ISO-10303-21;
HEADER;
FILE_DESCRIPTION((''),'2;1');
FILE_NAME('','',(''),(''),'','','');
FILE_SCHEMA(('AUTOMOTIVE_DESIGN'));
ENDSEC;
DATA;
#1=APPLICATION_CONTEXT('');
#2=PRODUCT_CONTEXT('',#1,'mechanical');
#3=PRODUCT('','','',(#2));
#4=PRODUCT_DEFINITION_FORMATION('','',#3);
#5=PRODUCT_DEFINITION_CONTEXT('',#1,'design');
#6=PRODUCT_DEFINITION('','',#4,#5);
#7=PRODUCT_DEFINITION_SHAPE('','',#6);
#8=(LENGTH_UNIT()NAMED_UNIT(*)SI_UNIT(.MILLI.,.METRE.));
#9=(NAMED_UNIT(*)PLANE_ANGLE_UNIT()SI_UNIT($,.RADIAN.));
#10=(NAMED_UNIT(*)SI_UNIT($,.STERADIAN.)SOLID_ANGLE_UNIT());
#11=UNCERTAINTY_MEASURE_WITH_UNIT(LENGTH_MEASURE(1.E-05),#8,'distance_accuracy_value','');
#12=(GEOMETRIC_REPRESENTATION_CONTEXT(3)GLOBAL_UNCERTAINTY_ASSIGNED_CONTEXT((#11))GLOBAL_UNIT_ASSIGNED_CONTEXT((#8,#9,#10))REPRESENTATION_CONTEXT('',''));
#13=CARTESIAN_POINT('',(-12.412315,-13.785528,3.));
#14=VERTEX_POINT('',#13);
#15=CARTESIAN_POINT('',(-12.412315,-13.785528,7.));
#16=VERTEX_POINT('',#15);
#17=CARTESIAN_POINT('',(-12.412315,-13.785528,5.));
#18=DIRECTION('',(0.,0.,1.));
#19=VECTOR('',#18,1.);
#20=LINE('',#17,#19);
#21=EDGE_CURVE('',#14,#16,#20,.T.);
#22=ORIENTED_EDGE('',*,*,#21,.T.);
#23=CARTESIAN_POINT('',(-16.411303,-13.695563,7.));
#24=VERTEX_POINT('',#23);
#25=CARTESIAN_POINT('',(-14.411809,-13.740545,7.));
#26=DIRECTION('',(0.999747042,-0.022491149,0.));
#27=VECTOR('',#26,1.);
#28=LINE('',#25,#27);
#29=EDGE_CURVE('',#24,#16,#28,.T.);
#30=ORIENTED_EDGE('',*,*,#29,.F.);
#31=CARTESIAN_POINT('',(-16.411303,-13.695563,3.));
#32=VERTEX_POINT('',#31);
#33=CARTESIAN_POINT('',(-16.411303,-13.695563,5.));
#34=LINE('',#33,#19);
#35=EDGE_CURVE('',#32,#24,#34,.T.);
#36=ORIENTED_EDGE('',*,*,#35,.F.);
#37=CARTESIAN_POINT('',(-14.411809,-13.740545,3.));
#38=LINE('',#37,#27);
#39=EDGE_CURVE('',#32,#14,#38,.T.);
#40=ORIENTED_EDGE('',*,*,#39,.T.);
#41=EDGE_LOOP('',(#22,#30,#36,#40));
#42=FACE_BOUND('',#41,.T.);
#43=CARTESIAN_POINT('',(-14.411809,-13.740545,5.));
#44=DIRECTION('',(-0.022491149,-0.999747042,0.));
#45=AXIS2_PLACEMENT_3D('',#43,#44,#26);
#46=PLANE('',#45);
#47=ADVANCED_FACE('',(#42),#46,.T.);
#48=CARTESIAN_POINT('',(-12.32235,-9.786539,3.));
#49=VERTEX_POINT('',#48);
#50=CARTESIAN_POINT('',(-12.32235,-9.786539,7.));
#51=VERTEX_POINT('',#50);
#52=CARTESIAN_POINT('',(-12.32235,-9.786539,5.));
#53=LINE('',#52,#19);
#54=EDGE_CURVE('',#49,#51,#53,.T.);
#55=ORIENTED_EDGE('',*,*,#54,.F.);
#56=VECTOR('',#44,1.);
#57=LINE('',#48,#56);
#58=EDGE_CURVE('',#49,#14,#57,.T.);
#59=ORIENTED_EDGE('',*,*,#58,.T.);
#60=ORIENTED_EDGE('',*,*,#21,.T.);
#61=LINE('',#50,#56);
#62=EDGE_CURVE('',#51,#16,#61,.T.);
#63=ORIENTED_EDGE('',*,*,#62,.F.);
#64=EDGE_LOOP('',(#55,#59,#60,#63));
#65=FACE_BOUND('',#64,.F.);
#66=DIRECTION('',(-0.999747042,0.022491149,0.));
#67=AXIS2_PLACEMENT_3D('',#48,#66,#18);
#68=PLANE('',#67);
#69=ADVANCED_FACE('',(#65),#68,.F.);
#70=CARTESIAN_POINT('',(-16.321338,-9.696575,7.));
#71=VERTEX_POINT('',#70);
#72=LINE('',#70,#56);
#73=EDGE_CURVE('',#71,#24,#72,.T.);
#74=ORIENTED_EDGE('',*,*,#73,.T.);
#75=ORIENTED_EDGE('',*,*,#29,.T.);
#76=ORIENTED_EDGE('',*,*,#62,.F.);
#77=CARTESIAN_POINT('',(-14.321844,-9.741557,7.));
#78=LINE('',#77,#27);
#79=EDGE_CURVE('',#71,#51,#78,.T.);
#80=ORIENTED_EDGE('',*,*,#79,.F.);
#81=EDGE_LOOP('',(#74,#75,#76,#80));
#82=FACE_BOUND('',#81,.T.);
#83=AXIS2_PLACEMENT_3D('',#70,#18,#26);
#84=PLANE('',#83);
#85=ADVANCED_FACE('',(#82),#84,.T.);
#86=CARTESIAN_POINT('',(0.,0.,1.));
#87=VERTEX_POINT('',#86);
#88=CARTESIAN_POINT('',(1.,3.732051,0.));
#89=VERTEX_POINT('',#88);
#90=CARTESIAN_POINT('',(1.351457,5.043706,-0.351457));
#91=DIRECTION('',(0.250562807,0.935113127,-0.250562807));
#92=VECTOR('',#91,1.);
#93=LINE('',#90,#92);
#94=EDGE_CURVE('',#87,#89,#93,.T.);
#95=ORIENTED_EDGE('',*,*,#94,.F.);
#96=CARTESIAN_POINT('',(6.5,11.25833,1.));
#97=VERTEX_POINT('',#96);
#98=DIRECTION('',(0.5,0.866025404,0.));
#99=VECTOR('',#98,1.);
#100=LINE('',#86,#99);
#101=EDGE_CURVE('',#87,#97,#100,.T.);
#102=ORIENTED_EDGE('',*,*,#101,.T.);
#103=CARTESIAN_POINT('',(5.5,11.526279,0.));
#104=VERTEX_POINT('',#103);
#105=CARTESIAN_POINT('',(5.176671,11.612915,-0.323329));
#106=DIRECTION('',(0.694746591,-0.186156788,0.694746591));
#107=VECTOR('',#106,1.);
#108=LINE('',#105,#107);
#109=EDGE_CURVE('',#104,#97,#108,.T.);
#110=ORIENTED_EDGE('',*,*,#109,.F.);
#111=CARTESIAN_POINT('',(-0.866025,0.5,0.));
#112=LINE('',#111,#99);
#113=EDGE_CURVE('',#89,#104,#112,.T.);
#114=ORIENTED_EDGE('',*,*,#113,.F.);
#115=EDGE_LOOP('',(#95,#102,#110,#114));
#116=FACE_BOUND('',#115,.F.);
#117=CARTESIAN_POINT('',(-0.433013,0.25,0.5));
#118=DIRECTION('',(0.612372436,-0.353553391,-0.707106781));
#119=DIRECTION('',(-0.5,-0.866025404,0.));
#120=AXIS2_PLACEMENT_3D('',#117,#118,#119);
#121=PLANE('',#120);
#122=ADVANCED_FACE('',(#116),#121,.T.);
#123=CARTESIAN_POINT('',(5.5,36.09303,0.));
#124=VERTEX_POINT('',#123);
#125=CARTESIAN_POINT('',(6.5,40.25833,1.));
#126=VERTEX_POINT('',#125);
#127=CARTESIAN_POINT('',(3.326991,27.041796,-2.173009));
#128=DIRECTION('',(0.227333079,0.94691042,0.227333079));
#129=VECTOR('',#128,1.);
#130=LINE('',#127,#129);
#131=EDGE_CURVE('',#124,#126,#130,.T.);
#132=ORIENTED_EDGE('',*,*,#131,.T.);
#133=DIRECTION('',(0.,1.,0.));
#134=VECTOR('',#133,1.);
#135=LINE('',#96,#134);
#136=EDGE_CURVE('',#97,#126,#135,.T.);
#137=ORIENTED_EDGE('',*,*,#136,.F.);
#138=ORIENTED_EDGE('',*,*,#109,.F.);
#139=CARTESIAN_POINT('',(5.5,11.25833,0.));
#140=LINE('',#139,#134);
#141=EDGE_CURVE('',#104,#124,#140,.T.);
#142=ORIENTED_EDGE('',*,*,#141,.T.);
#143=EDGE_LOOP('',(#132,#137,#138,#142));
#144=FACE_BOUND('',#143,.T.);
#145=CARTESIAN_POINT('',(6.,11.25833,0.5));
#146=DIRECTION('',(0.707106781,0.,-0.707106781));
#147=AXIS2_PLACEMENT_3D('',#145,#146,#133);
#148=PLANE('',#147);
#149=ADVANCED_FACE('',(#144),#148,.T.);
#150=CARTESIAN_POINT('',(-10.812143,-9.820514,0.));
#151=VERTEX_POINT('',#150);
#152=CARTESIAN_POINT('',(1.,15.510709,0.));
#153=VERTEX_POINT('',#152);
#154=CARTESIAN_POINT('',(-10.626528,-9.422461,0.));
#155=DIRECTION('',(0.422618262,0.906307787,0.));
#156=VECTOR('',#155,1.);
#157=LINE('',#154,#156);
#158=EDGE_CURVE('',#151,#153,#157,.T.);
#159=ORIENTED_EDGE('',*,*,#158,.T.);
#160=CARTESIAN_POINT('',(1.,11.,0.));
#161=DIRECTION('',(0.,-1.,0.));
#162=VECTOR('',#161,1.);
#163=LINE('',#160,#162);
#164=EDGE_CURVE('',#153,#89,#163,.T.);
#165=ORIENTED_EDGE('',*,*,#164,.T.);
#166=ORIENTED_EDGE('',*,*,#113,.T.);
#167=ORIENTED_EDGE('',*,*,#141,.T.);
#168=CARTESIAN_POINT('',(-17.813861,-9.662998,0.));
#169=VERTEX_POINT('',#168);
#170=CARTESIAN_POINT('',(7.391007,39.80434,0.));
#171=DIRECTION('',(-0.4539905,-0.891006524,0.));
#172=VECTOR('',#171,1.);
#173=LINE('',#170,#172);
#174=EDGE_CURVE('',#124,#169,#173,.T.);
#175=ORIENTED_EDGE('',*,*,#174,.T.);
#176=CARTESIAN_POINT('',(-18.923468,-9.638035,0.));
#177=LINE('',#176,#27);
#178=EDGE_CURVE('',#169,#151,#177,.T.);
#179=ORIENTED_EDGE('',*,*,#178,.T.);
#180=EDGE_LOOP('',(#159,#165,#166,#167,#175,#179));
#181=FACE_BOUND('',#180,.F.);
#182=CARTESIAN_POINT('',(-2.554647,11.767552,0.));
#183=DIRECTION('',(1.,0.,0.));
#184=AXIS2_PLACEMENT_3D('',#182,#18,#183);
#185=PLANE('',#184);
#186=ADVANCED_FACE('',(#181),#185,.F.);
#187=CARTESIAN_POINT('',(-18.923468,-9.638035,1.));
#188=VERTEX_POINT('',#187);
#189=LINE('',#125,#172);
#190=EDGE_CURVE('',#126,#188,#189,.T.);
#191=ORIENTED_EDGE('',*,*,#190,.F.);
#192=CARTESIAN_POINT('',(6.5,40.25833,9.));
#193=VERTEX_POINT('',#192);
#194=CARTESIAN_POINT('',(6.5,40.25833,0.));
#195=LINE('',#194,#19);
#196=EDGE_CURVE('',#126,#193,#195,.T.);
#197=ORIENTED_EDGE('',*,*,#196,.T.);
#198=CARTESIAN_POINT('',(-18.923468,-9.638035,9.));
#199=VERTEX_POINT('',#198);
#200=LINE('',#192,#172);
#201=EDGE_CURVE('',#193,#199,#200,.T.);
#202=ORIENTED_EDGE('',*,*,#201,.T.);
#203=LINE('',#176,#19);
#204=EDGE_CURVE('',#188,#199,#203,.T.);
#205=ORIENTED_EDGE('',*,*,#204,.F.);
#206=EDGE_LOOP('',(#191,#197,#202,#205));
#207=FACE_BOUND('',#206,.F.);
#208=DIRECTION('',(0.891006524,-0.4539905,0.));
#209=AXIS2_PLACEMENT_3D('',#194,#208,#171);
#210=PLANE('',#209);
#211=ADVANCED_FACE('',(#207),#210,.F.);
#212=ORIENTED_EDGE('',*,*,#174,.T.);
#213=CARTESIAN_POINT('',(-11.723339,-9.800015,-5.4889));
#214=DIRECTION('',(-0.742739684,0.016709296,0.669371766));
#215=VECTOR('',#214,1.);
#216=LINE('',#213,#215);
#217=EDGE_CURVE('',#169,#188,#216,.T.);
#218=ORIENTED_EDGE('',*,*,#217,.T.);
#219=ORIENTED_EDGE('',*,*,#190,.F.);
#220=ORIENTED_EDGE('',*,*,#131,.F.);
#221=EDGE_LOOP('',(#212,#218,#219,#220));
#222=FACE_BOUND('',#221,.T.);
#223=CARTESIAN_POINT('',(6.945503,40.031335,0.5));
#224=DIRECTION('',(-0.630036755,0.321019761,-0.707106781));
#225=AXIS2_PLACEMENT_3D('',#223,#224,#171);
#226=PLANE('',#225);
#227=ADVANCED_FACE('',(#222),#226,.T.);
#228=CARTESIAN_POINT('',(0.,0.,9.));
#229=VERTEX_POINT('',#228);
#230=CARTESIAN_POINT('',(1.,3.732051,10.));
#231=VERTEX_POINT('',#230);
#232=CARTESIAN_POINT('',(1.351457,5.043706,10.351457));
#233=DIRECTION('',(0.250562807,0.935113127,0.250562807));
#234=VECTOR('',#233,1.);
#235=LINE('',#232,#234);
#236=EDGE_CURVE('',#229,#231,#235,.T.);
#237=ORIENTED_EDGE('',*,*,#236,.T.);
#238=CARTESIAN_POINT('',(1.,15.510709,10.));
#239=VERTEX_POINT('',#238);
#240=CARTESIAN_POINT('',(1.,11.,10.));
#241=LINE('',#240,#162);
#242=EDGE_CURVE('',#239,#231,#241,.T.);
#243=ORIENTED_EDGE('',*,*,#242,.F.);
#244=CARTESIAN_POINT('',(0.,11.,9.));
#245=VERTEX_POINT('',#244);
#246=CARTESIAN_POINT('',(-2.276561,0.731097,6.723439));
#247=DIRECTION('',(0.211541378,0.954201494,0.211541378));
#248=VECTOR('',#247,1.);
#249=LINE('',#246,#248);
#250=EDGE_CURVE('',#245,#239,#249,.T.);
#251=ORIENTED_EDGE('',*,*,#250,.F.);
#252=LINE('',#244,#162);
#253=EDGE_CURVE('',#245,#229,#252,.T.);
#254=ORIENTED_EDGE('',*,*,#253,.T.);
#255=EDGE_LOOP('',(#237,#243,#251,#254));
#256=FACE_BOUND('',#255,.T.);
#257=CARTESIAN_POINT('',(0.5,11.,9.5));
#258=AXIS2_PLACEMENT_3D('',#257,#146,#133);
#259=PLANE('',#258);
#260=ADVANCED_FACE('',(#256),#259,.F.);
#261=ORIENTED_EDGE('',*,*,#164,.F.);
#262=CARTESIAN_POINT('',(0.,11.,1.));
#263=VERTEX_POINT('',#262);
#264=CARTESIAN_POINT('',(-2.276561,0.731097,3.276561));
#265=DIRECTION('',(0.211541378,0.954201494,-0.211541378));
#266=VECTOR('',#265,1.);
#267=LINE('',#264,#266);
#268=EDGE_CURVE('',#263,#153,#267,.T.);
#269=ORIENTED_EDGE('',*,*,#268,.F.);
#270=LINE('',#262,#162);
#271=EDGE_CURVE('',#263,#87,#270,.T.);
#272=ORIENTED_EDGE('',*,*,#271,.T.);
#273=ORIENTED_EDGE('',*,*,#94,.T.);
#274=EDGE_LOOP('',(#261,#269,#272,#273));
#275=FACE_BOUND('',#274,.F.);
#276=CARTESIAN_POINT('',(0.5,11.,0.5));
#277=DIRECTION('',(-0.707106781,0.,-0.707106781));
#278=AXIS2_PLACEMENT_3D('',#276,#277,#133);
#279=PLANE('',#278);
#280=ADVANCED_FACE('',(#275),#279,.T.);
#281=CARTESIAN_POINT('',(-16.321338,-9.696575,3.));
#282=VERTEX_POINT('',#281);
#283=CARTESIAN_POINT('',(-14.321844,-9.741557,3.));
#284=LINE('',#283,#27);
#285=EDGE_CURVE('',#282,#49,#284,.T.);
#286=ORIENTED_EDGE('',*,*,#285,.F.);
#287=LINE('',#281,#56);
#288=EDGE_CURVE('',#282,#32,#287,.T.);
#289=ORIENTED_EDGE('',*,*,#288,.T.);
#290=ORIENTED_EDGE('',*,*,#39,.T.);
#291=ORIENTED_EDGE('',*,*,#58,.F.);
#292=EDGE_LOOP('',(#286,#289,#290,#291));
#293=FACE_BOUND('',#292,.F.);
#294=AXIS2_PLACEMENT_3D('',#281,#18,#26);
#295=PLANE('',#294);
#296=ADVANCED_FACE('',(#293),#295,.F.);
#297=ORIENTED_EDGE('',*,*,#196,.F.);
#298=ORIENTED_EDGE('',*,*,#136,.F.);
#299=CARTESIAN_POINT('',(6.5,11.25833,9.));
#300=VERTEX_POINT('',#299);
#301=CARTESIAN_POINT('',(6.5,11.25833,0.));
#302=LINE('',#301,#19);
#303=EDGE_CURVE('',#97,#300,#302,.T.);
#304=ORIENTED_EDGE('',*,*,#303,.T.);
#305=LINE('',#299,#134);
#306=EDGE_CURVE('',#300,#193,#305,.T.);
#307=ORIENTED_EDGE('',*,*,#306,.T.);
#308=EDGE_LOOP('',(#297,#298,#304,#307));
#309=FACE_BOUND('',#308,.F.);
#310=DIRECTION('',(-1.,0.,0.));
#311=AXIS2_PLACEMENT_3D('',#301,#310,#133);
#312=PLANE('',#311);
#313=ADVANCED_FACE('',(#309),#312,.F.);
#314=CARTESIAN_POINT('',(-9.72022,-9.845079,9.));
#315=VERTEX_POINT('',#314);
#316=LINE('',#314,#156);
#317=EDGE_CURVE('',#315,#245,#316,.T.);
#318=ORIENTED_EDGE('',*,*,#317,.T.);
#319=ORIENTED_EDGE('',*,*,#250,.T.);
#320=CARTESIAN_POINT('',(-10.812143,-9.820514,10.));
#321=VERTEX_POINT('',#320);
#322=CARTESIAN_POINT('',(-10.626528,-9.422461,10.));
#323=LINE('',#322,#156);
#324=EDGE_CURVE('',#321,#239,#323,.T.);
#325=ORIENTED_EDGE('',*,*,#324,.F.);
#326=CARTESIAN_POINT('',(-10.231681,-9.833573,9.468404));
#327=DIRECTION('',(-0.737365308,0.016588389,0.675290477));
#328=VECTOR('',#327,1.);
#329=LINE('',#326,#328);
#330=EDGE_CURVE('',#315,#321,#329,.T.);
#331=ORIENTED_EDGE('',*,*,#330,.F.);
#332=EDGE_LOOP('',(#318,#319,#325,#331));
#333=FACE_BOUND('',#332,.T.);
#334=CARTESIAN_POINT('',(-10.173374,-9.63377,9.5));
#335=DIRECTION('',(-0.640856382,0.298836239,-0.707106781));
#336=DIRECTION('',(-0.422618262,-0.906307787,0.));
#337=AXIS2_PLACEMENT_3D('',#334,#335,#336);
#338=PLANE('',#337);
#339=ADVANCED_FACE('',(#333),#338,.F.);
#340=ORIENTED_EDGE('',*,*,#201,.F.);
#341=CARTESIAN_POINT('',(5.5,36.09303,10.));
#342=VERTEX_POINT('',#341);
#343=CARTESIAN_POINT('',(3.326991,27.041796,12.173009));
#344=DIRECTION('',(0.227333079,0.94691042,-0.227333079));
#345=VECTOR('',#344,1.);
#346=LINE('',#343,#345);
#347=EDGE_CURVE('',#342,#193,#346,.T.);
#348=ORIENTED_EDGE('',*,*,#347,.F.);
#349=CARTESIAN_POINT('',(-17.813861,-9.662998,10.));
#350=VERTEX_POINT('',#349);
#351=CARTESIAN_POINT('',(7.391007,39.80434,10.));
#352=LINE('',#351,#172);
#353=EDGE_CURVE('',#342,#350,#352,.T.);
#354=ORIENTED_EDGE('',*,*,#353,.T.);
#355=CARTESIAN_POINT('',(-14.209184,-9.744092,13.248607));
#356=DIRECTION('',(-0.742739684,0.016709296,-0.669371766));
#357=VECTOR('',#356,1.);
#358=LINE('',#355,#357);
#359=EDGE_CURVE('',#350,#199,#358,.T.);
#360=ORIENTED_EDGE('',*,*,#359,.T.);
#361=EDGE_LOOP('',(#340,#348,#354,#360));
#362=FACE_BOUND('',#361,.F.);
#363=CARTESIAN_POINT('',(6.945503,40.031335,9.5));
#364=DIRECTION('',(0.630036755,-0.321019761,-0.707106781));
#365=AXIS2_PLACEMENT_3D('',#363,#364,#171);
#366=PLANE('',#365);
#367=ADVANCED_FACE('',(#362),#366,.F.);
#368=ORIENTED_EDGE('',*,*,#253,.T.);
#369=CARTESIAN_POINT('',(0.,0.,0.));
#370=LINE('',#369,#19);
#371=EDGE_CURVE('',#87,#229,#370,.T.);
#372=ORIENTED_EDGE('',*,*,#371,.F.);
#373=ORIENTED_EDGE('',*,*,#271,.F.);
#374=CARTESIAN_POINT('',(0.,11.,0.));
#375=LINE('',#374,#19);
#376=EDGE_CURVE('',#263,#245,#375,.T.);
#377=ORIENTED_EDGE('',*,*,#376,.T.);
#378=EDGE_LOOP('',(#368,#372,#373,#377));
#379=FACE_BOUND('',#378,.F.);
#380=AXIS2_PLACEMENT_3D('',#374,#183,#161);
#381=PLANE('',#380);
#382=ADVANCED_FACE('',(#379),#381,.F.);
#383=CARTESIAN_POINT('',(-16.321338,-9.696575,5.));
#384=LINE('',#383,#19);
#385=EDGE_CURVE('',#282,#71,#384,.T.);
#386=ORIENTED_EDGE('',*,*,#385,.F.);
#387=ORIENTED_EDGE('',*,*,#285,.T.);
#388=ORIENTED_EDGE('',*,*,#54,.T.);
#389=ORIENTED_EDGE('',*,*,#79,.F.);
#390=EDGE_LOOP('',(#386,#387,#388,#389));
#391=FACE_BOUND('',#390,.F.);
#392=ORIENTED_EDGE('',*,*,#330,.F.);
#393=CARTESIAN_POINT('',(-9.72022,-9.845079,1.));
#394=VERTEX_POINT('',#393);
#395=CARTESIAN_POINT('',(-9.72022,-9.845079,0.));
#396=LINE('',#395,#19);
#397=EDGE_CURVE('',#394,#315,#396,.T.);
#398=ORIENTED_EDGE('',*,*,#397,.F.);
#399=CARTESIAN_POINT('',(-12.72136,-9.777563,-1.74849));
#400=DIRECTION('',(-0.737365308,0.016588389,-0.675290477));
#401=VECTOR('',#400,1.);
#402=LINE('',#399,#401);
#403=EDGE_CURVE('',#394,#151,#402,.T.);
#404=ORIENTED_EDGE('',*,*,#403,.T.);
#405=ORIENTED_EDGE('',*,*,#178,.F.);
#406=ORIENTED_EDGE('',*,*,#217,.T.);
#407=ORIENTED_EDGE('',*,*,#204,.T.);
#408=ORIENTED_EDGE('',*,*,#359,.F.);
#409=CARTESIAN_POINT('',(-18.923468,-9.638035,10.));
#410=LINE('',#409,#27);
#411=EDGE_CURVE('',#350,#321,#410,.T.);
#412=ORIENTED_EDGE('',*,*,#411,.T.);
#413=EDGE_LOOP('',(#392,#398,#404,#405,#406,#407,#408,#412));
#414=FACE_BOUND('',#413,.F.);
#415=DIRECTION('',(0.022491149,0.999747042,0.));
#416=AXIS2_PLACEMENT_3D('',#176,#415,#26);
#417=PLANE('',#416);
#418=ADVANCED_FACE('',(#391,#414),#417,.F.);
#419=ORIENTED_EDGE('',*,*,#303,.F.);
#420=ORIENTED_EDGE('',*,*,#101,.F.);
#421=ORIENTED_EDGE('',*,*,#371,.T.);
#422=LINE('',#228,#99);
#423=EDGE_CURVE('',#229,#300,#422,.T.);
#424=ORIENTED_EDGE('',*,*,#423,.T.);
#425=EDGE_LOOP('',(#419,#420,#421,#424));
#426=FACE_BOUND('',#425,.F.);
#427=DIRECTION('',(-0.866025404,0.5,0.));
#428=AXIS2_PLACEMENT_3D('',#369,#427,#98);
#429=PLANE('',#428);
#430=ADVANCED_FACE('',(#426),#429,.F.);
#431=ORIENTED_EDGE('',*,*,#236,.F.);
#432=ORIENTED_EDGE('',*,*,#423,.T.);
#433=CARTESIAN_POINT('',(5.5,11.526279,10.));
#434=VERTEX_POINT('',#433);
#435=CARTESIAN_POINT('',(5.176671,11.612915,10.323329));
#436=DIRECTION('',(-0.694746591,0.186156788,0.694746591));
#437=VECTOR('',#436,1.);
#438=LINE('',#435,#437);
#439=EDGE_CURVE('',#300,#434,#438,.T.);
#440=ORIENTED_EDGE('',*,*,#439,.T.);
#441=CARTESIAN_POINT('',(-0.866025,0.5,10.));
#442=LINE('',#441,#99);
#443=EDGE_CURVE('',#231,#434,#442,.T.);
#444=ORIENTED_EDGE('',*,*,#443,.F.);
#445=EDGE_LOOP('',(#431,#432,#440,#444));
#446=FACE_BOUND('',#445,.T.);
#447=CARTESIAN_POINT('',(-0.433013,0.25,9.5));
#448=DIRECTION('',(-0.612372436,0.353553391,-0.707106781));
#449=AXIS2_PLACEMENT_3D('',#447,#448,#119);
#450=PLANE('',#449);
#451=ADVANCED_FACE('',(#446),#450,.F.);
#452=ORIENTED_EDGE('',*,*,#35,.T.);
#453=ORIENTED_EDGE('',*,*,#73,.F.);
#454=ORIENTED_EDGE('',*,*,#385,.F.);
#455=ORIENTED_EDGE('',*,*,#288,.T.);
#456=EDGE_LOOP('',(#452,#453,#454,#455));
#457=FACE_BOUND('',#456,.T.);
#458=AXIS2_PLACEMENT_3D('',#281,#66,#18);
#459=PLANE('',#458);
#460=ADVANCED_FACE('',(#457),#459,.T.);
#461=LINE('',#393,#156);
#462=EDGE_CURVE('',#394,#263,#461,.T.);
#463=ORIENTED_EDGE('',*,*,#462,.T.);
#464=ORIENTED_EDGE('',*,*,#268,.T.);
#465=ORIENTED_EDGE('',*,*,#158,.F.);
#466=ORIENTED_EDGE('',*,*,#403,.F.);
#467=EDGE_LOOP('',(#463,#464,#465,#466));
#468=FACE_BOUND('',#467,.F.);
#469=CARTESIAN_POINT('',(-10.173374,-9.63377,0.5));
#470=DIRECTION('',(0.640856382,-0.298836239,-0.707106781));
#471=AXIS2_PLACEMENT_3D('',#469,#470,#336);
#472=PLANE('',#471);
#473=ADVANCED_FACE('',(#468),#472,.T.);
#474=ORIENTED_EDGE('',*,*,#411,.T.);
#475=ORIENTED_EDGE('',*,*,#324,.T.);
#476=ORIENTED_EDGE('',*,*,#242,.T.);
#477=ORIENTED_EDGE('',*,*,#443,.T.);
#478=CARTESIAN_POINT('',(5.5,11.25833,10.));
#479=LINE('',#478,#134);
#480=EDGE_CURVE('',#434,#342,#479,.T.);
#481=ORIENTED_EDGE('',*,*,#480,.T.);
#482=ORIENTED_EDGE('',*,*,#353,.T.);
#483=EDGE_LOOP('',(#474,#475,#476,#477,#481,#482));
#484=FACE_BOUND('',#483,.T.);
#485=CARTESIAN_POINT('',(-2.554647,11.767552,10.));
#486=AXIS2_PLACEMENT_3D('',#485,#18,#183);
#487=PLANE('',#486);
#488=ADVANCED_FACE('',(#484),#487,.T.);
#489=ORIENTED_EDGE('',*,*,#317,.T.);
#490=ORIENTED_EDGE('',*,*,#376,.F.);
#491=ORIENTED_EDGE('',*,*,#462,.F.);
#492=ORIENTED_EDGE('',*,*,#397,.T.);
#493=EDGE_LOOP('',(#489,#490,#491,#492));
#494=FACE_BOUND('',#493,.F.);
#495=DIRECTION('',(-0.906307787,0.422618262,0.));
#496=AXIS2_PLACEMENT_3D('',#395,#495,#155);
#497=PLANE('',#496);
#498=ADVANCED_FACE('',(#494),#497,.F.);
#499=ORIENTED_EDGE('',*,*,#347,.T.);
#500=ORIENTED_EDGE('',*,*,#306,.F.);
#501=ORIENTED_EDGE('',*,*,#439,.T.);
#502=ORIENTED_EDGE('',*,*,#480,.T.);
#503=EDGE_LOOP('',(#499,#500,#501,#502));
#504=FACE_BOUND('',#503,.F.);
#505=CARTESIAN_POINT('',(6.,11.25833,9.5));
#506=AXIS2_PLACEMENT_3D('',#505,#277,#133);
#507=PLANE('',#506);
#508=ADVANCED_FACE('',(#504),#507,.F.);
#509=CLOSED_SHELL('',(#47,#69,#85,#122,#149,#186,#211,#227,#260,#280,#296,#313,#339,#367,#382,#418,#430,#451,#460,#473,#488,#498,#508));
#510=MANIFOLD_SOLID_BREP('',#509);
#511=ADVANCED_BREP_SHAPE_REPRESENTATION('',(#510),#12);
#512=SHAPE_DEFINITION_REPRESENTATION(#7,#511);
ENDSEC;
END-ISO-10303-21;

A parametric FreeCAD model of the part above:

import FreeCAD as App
import Part
import Sketcher
from FreeCAD import Vector
Q = App.Units.Quantity


def edges_at(feature, points):
    """Names of the edges that pass closest to the given points."""
    edges = feature.Shape.Edges
    near = lambda p: min(range(len(edges)), key=lambda i: edges[i].distToShape(Part.Vertex(*p))[0])
    return sorted({f"Edge{near(p) + 1}" for p in points})


def add_polygon(sketch, points):
    """Adds a closed chain of lines whose ends are joined by coincident constraints."""
    first, n = sketch.GeometryCount, len(points)
    for a, b in zip(points, points[1:] + points[:1]):
        sketch.addGeometry(Part.LineSegment(App.Vector(*a, 0), App.Vector(*b, 0)), False)
    for i in range(n):
        sketch.addConstraint(Sketcher.Constraint("Coincident", first + i, 2, first + (i + 1) % n, 1))

doc = App.newDocument("Part")
body = doc.addObject("PartDesign::Body", "Body")

# Sketch on XY plane
sketch1 = body.newObject("Sketcher::SketchObject", "Sketch")
sketch1.AttachmentSupport = (doc.getObject("XY_Plane"), [""])
sketch1.MapMode = "FlatFace"
add_polygon(sketch1, [(0, 11), (0, 0), (6.5, 11.25833), (6.5, 40.25833), (-18.923468, -9.638035), (-9.72022, -9.845079)])  # lines 0-5
sketch1.addConstraint([
    Sketcher.Constraint("Vertical", 0),
    Sketcher.Constraint("Vertical", 2),
    Sketcher.Constraint("Coincident", 0, 2, -1, 1),
    Sketcher.Constraint("DistanceY", 0, 2, 0, 1, 11.0),
    Sketcher.Constraint("DistanceY", 2, 1, 2, 2, 29.0),
    Sketcher.Constraint("Angle", 1, Q("60 deg")),
    Sketcher.Constraint("Angle", 3, Q("-117 deg")),
    Sketcher.Constraint("Angle", 5, Q("65 deg")),
    Sketcher.Constraint("Distance", 1, 13.0),
    Sketcher.Constraint("Distance", 3, 56.0),
    Sketcher.Constraint("Distance", 5, 23.0),
])
pad1 = body.newObject("PartDesign::Pad", "Pad")
pad1.Profile = sketch1
pad1.Length = 10

# Sketch on an angled plane
sketch2 = body.newObject("Sketcher::SketchObject", "Sketch001")
sketch2.Placement = App.Placement(Vector(-0.226288, -10.058663, 0), App.Rotation(Vector(0.999747042, -0.022491149, 0), Vector(0, 0, 1), Vector(-0.022491149, -0.999747042, 0), "ZXY"))
add_polygon(sketch2, [(-16.099122, 7), (-16.099122, 3), (-12.099122, 3), (-12.099122, 7)])  # lines 0-3
sketch2.addConstraint([
    Sketcher.Constraint("Vertical", 0),
    Sketcher.Constraint("Horizontal", 1),
    Sketcher.Constraint("Vertical", 2),
    Sketcher.Constraint("Horizontal", 3),
    Sketcher.Constraint("Equal", 3, 0),
    Sketcher.Constraint("DistanceX", 1, 1, 1, 2, 4.0),
    Sketcher.Constraint("DistanceY", -1, 1, 0, 2, 3.0),
    Sketcher.Constraint("DistanceX", 0, 2, -1, 1, 16.099122),
])
pad2 = body.newObject("PartDesign::Pad", "Pad001")
pad2.Profile = sketch2
pad2.Length = 4
doc.recompute()

chamfer = body.newObject("PartDesign::Chamfer", "Chamfer")
chamfer.Base = (pad2, edges_at(pad2, [
    (-4.86, 0.577, 10),
    (0, 5.5, 10),
    (3.25, 5.629, 10),
    (6.5, 25.758, 10),
    (-6.212, 15.31, 10),
    (6.5, 25.758, 0),
    (-6.212, 15.31, 0),
    (3.25, 5.629, 0),
    (0, 5.5, 0),
    (-4.86, 0.577, 0),
]))
chamfer.Size = 1

doc.recompute()
